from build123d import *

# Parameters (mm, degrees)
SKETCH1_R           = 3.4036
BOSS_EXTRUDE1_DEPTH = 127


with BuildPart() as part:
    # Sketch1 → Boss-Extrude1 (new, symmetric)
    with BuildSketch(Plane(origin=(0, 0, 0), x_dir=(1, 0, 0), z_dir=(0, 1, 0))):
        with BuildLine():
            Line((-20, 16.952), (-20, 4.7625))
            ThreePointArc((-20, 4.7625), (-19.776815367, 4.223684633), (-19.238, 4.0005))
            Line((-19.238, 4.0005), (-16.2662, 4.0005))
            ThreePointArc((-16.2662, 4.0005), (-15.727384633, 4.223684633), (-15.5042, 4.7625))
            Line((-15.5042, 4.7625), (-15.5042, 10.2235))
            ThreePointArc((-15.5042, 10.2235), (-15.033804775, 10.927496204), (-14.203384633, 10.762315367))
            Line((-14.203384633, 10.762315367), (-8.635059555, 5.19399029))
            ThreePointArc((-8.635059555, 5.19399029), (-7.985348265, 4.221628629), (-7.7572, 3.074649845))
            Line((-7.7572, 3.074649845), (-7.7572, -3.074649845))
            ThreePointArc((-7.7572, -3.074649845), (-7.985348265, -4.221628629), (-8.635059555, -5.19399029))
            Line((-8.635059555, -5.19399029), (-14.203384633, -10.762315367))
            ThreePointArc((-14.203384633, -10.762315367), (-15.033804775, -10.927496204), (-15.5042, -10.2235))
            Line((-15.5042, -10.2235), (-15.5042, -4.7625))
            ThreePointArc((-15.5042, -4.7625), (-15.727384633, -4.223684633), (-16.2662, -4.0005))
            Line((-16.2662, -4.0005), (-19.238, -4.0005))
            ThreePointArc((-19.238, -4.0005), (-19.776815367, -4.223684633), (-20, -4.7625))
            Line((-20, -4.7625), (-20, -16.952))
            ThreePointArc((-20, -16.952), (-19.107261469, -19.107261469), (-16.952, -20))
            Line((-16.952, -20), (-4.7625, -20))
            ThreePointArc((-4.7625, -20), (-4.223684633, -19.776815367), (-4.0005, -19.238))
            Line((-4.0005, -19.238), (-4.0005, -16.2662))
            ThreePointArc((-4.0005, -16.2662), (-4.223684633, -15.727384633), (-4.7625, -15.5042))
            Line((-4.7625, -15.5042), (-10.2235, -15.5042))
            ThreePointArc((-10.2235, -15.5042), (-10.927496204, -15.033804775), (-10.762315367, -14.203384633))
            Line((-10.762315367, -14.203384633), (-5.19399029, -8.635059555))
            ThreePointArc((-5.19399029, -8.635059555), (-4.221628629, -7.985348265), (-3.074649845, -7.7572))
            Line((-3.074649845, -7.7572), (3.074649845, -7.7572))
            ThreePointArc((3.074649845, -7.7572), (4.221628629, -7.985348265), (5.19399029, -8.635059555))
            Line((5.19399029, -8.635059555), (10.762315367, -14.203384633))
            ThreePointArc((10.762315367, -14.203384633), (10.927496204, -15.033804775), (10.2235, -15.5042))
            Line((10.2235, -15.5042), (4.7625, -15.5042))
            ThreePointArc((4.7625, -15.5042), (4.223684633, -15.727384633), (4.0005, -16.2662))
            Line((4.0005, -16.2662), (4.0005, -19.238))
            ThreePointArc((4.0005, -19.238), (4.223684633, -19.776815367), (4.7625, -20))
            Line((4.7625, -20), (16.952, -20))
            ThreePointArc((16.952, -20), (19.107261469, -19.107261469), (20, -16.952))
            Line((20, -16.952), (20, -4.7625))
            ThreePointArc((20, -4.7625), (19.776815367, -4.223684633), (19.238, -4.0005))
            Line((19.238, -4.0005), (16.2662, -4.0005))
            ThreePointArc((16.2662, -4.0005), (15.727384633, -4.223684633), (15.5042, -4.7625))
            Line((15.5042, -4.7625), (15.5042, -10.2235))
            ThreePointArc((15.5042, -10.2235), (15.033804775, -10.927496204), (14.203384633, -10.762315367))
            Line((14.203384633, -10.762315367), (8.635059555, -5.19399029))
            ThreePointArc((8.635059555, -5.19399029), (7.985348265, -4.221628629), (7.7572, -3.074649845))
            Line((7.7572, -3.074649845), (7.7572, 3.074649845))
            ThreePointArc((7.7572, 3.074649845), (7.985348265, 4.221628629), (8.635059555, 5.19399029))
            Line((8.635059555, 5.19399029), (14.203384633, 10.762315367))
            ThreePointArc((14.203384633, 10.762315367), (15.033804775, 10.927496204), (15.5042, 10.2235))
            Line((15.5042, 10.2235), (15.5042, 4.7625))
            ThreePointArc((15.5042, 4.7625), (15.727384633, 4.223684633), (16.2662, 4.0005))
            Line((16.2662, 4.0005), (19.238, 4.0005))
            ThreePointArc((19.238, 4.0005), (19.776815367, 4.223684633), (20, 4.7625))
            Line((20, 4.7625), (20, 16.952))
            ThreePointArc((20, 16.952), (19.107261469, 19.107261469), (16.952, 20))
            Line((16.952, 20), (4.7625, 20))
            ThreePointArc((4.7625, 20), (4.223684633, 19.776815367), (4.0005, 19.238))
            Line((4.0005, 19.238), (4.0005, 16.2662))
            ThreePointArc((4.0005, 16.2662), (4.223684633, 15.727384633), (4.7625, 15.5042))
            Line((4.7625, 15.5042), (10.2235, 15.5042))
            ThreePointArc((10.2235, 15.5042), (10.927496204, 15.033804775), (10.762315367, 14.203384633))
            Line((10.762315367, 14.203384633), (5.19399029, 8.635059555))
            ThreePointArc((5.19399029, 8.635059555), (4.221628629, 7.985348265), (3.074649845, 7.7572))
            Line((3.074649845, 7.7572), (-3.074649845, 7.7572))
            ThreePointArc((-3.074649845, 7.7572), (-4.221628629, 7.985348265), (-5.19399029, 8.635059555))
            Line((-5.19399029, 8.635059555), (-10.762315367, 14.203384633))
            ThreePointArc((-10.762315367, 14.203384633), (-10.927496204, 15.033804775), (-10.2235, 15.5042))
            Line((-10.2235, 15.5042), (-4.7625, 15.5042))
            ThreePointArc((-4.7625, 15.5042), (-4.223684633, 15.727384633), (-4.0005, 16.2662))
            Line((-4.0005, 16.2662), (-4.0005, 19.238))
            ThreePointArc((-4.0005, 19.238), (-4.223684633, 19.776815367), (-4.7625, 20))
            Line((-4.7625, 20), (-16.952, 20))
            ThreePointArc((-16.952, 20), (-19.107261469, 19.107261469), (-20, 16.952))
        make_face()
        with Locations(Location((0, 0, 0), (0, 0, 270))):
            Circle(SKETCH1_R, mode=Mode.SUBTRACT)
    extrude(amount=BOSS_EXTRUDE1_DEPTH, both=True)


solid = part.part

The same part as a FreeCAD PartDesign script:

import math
import FreeCAD as App
import Part
import Sketcher

V = App.Vector
Q = App.Units.Quantity

doc = App.newDocument("Part")
params = doc.addObject("Spreadsheet::Sheet", "Params")
for row, (alias, value) in enumerate([
    ("sketch1_radius", "0.03 in"),
    ("sketch1_radius2", "0.12 in"),
    ("sketch1_diameter", "0.268 in"),
    ("sketch1_radius3", "0.118 in"),
    ("sketch1_width", "0.117 in"),
    ("pad1_length", "10 in"),
], start=1):
    params.set(f"A{row}", alias)
    params.set(f"B{row}", "=" + value)
    params.setAlias(f"B{row}", alias)

body = doc.addObject("PartDesign::Body", "Body")

# Sketch on XZ plane
sketch1 = doc.addObject("Sketcher::SketchObject", "Sketch")
body.addObject(sketch1)
sketch1.AttachmentSupport = (doc.XZ_Plane, [""])
sketch1.MapMode = "FlatFace"
sketch1.addGeometry([
    Part.LineSegment(V(-20, -16.952, 0), V(-20, -4.7625, 0)),  # 0
    Part.ArcOfCircle(Part.Circle(V(-19.238, -4.7625, 0), V(0, 0, 1), 0.762), math.radians(90), math.radians(180)),  # 1
    Part.LineSegment(V(-19.238, -4.0005, 0), V(-16.2662, -4.0005, 0)),  # 2
    Part.ArcOfCircle(Part.Circle(V(-16.2662, -4.7625, 0), V(0, 0, 1), 0.762), math.radians(0), math.radians(90)),  # 3
    Part.LineSegment(V(-15.5042, -4.7625, 0), V(-15.5042, -10.2235, 0)),  # 4
    Part.ArcOfCircle(Part.Circle(V(-14.7422, -10.2235, 0), V(0, 0, 1), 0.762), math.radians(180), math.radians(315)),  # 5
    Part.LineSegment(V(-14.203385, -10.762315, 0), V(-8.63506, -5.19399, 0)),  # 6
    Part.ArcOfCircle(Part.Circle(V(-10.7544, -3.07465, 0), V(0, 0, 1), 2.9972), math.radians(-45), math.radians(0)),  # 7
    Part.LineSegment(V(-7.7572, -3.07465, 0), V(-7.7572, 3.07465, 0)),  # 8
    Part.ArcOfCircle(Part.Circle(V(-10.7544, 3.07465, 0), V(0, 0, 1), 2.9972), math.radians(0), math.radians(45)),  # 9
    Part.LineSegment(V(-8.63506, 5.19399, 0), V(-14.203385, 10.762315, 0)),  # 10
    Part.ArcOfCircle(Part.Circle(V(-14.7422, 10.2235, 0), V(0, 0, 1), 0.762), math.radians(45), math.radians(180)),  # 11
    Part.LineSegment(V(-15.5042, 10.2235, 0), V(-15.5042, 4.7625, 0)),  # 12
    Part.ArcOfCircle(Part.Circle(V(-16.2662, 4.7625, 0), V(0, 0, 1), 0.762), math.radians(-90), math.radians(0)),  # 13
    Part.LineSegment(V(-16.2662, 4.0005, 0), V(-19.238, 4.0005, 0)),  # 14
    Part.ArcOfCircle(Part.Circle(V(-19.238, 4.7625, 0), V(0, 0, 1), 0.762), math.radians(-180), math.radians(-90)),  # 15
    Part.LineSegment(V(-20, 4.7625, 0), V(-20, 16.952, 0)),  # 16
    Part.ArcOfCircle(Part.Circle(V(-16.952, 16.952, 0), V(0, 0, 1), 3.048), math.radians(90), math.radians(180)),  # 17
    Part.LineSegment(V(-16.952, 20, 0), V(-4.7625, 20, 0)),  # 18
    Part.ArcOfCircle(Part.Circle(V(-4.7625, 19.238, 0), V(0, 0, 1), 0.762), math.radians(0), math.radians(90)),  # 19
    Part.LineSegment(V(-4.0005, 19.238, 0), V(-4.0005, 16.2662, 0)),  # 20
    Part.ArcOfCircle(Part.Circle(V(-4.7625, 16.2662, 0), V(0, 0, 1), 0.762), math.radians(-90), math.radians(0)),  # 21
    Part.LineSegment(V(-4.7625, 15.5042, 0), V(-10.2235, 15.5042, 0)),  # 22
    Part.ArcOfCircle(Part.Circle(V(-10.2235, 14.7422, 0), V(0, 0, 1), 0.762), math.radians(90), math.radians(225)),  # 23
    Part.LineSegment(V(-10.762315, 14.203385, 0), V(-5.19399, 8.63506, 0)),  # 24
    Part.ArcOfCircle(Part.Circle(V(-3.07465, 10.7544, 0), V(0, 0, 1), 2.9972), math.radians(-135), math.radians(-90)),  # 25
    Part.LineSegment(V(-3.07465, 7.7572, 0), V(3.07465, 7.7572, 0)),  # 26
    Part.ArcOfCircle(Part.Circle(V(3.07465, 10.7544, 0), V(0, 0, 1), 2.9972), math.radians(-90), math.radians(-45)),  # 27
    Part.LineSegment(V(5.19399, 8.63506, 0), V(10.762315, 14.203385, 0)),  # 28
    Part.ArcOfCircle(Part.Circle(V(10.2235, 14.7422, 0), V(0, 0, 1), 0.762), math.radians(-45), math.radians(90)),  # 29
    Part.LineSegment(V(10.2235, 15.5042, 0), V(4.7625, 15.5042, 0)),  # 30
    Part.ArcOfCircle(Part.Circle(V(4.7625, 16.2662, 0), V(0, 0, 1), 0.762), math.radians(-180), math.radians(-90)),  # 31
    Part.LineSegment(V(4.0005, 16.2662, 0), V(4.0005, 19.238, 0)),  # 32
    Part.ArcOfCircle(Part.Circle(V(4.7625, 19.238, 0), V(0, 0, 1), 0.762), math.radians(90), math.radians(180)),  # 33
    Part.LineSegment(V(4.7625, 20, 0), V(16.952, 20, 0)),  # 34
    Part.ArcOfCircle(Part.Circle(V(16.952, 16.952, 0), V(0, 0, 1), 3.048), math.radians(0), math.radians(90)),  # 35
    Part.LineSegment(V(20, 16.952, 0), V(20, 4.7625, 0)),  # 36
    Part.ArcOfCircle(Part.Circle(V(19.238, 4.7625, 0), V(0, 0, 1), 0.762), math.radians(-90), math.radians(0)),  # 37
    Part.LineSegment(V(19.238, 4.0005, 0), V(16.2662, 4.0005, 0)),  # 38
    Part.ArcOfCircle(Part.Circle(V(16.2662, 4.7625, 0), V(0, 0, 1), 0.762), math.radians(-180), math.radians(-90)),  # 39
    Part.LineSegment(V(15.5042, 4.7625, 0), V(15.5042, 10.2235, 0)),  # 40
    Part.ArcOfCircle(Part.Circle(V(14.7422, 10.2235, 0), V(0, 0, 1), 0.762), math.radians(0), math.radians(135)),  # 41
    Part.LineSegment(V(14.203385, 10.762315, 0), V(8.63506, 5.19399, 0)),  # 42
    Part.ArcOfCircle(Part.Circle(V(10.7544, 3.07465, 0), V(0, 0, 1), 2.9972), math.radians(135), math.radians(180)),  # 43
    Part.LineSegment(V(7.7572, 3.07465, 0), V(7.7572, -3.07465, 0)),  # 44
    Part.ArcOfCircle(Part.Circle(V(10.7544, -3.07465, 0), V(0, 0, 1), 2.9972), math.radians(180), math.radians(225)),  # 45
    Part.LineSegment(V(8.63506, -5.19399, 0), V(14.203385, -10.762315, 0)),  # 46
    Part.ArcOfCircle(Part.Circle(V(14.7422, -10.2235, 0), V(0, 0, 1), 0.762), math.radians(-135), math.radians(0)),  # 47
    Part.LineSegment(V(15.5042, -10.2235, 0), V(15.5042, -4.7625, 0)),  # 48
    Part.ArcOfCircle(Part.Circle(V(16.2662, -4.7625, 0), V(0, 0, 1), 0.762), math.radians(90), math.radians(180)),  # 49
    Part.LineSegment(V(16.2662, -4.0005, 0), V(19.238, -4.0005, 0)),  # 50
    Part.ArcOfCircle(Part.Circle(V(19.238, -4.7625, 0), V(0, 0, 1), 0.762), math.radians(0), math.radians(90)),  # 51
    Part.LineSegment(V(20, -4.7625, 0), V(20, -16.952, 0)),  # 52
    Part.ArcOfCircle(Part.Circle(V(16.952, -16.952, 0), V(0, 0, 1), 3.048), math.radians(-90), math.radians(0)),  # 53
    Part.LineSegment(V(16.952, -20, 0), V(4.7625, -20, 0)),  # 54
    Part.ArcOfCircle(Part.Circle(V(4.7625, -19.238, 0), V(0, 0, 1), 0.762), math.radians(-180), math.radians(-90)),  # 55
    Part.LineSegment(V(4.0005, -19.238, 0), V(4.0005, -16.2662, 0)),  # 56
    Part.ArcOfCircle(Part.Circle(V(4.7625, -16.2662, 0), V(0, 0, 1), 0.762), math.radians(90), math.radians(180)),  # 57
    Part.LineSegment(V(4.7625, -15.5042, 0), V(10.2235, -15.5042, 0)),  # 58
    Part.ArcOfCircle(Part.Circle(V(10.2235, -14.7422, 0), V(0, 0, 1), 0.762), math.radians(-90), math.radians(45)),  # 59
    Part.LineSegment(V(10.762315, -14.203385, 0), V(5.19399, -8.63506, 0)),  # 60
    Part.ArcOfCircle(Part.Circle(V(3.07465, -10.7544, 0), V(0, 0, 1), 2.9972), math.radians(45), math.radians(90)),  # 61
    Part.LineSegment(V(3.07465, -7.7572, 0), V(-3.07465, -7.7572, 0)),  # 62
    Part.ArcOfCircle(Part.Circle(V(-3.07465, -10.7544, 0), V(0, 0, 1), 2.9972), math.radians(90), math.radians(135)),  # 63
    Part.LineSegment(V(-5.19399, -8.63506, 0), V(-10.762315, -14.203385, 0)),  # 64
    Part.ArcOfCircle(Part.Circle(V(-10.2235, -14.7422, 0), V(0, 0, 1), 0.762), math.radians(135), math.radians(270)),  # 65
    Part.LineSegment(V(-10.2235, -15.5042, 0), V(-4.7625, -15.5042, 0)),  # 66
    Part.ArcOfCircle(Part.Circle(V(-4.7625, -16.2662, 0), V(0, 0, 1), 0.762), math.radians(0), math.radians(90)),  # 67
    Part.LineSegment(V(-4.0005, -16.2662, 0), V(-4.0005, -19.238, 0)),  # 68
    Part.ArcOfCircle(Part.Circle(V(-4.7625, -19.238, 0), V(0, 0, 1), 0.762), math.radians(-90), math.radians(0)),  # 69
    Part.LineSegment(V(-4.7625, -20, 0), V(-16.952, -20, 0)),  # 70
    Part.ArcOfCircle(Part.Circle(V(-16.952, -16.952, 0), V(0, 0, 1), 3.048), math.radians(180), math.radians(270)),  # 71
    Part.Circle(V(0, 0, 0), V(0, 0, 1), 3.4036),  # 72
], False)
sketch1.addConstraint([
    Sketcher.Constraint("Tangent", 0, 2, 1, 2),
    Sketcher.Constraint("Tangent", 1, 1, 2, 1),
    Sketcher.Constraint("Tangent", 2, 2, 3, 2),
    Sketcher.Constraint("Tangent", 3, 1, 4, 1),
    Sketcher.Constraint("Tangent", 4, 2, 5, 1),
    Sketcher.Constraint("Tangent", 5, 2, 6, 1),
    Sketcher.Constraint("Tangent", 6, 2, 7, 1),
    Sketcher.Constraint("Tangent", 7, 2, 8, 1),
    Sketcher.Constraint("Tangent", 8, 2, 9, 1),
    Sketcher.Constraint("Tangent", 9, 2, 10, 1),
    Sketcher.Constraint("Tangent", 10, 2, 11, 1),
    Sketcher.Constraint("Tangent", 11, 2, 12, 1),
    Sketcher.Constraint("Tangent", 12, 2, 13, 2),
    Sketcher.Constraint("Tangent", 13, 1, 14, 1),
    Sketcher.Constraint("Tangent", 14, 2, 15, 2),
    Sketcher.Constraint("Tangent", 15, 1, 16, 1),
    Sketcher.Constraint("Tangent", 16, 2, 17, 2),
    Sketcher.Constraint("Tangent", 17, 1, 18, 1),
    Sketcher.Constraint("Tangent", 18, 2, 19, 2),
    Sketcher.Constraint("Tangent", 19, 1, 20, 1),
    Sketcher.Constraint("Tangent", 20, 2, 21, 2),
    Sketcher.Constraint("Tangent", 21, 1, 22, 1),
    Sketcher.Constraint("Tangent", 22, 2, 23, 1),
    Sketcher.Constraint("Tangent", 23, 2, 24, 1),
    Sketcher.Constraint("Tangent", 24, 2, 25, 1),
    Sketcher.Constraint("Tangent", 25, 2, 26, 1),
    Sketcher.Constraint("Tangent", 26, 2, 27, 1),
    Sketcher.Constraint("Tangent", 27, 2, 28, 1),
    Sketcher.Constraint("Tangent", 28, 2, 29, 1),
    Sketcher.Constraint("Tangent", 29, 2, 30, 1),
    Sketcher.Constraint("Tangent", 30, 2, 31, 2),
    Sketcher.Constraint("Tangent", 31, 1, 32, 1),
    Sketcher.Constraint("Tangent", 32, 2, 33, 2),
    Sketcher.Constraint("Tangent", 33, 1, 34, 1),
    Sketcher.Constraint("Tangent", 34, 2, 35, 2),
    Sketcher.Constraint("Tangent", 35, 1, 36, 1),
    Sketcher.Constraint("Tangent", 36, 2, 37, 2),
    Sketcher.Constraint("Tangent", 37, 1, 38, 1),
    Sketcher.Constraint("Tangent", 38, 2, 39, 2),
    Sketcher.Constraint("Tangent", 39, 1, 40, 1),
    Sketcher.Constraint("Tangent", 40, 2, 41, 1),
    Sketcher.Constraint("Tangent", 41, 2, 42, 1),
    Sketcher.Constraint("Tangent", 42, 2, 43, 1),
    Sketcher.Constraint("Tangent", 43, 2, 44, 1),
    Sketcher.Constraint("Tangent", 44, 2, 45, 1),
    Sketcher.Constraint("Tangent", 45, 2, 46, 1),
    Sketcher.Constraint("Tangent", 46, 2, 47, 1),
    Sketcher.Constraint("Tangent", 47, 2, 48, 1),
    Sketcher.Constraint("Tangent", 48, 2, 49, 2),
    Sketcher.Constraint("Tangent", 49, 1, 50, 1),
    Sketcher.Constraint("Tangent", 50, 2, 51, 2),
    Sketcher.Constraint("Tangent", 51, 1, 52, 1),
    Sketcher.Constraint("Tangent", 52, 2, 53, 2),
    Sketcher.Constraint("Tangent", 53, 1, 54, 1),
    Sketcher.Constraint("Tangent", 54, 2, 55, 2),
    Sketcher.Constraint("Tangent", 55, 1, 56, 1),
    Sketcher.Constraint("Tangent", 56, 2, 57, 2),
    Sketcher.Constraint("Tangent", 57, 1, 58, 1),
    Sketcher.Constraint("Tangent", 58, 2, 59, 1),
    Sketcher.Constraint("Tangent", 59, 2, 60, 1),
    Sketcher.Constraint("Tangent", 60, 2, 61, 1),
    Sketcher.Constraint("Tangent", 61, 2, 62, 1),
    Sketcher.Constraint("Tangent", 62, 2, 63, 1),
    Sketcher.Constraint("Tangent", 63, 2, 64, 1),
    Sketcher.Constraint("Tangent", 64, 2, 65, 1),
    Sketcher.Constraint("Tangent", 65, 2, 66, 1),
    Sketcher.Constraint("Tangent", 66, 2, 67, 2),
    Sketcher.Constraint("Tangent", 67, 1, 68, 1),
    Sketcher.Constraint("Tangent", 68, 2, 69, 2),
    Sketcher.Constraint("Tangent", 69, 1, 70, 1),
    Sketcher.Constraint("Tangent", 70, 2, 71, 2),
    Sketcher.Constraint("Tangent", 71, 1, 0, 1),
    Sketcher.Constraint("Vertical", 0),
    Sketcher.Constraint("Horizontal", 2),
    Sketcher.Constraint("Vertical", 4),
    Sketcher.Constraint("Vertical", 8),
    Sketcher.Constraint("Vertical", 12),
    Sketcher.Constraint("Horizontal", 14),
    Sketcher.Constraint("Vertical", 16),
    Sketcher.Constraint("Horizontal", 18),
    Sketcher.Constraint("Vertical", 20),
    Sketcher.Constraint("Horizontal", 22),
    Sketcher.Constraint("Horizontal", 26),
    Sketcher.Constraint("Horizontal", 30),
    Sketcher.Constraint("Vertical", 32),
    Sketcher.Constraint("Horizontal", 34),
    Sketcher.Constraint("Vertical", 36),
    Sketcher.Constraint("Horizontal", 38),
    Sketcher.Constraint("Vertical", 40),
    Sketcher.Constraint("Vertical", 44),
    Sketcher.Constraint("Vertical", 48),
    Sketcher.Constraint("Horizontal", 50),
    Sketcher.Constraint("Vertical", 52),
    Sketcher.Constraint("Horizontal", 54),
    Sketcher.Constraint("Vertical", 56),
    Sketcher.Constraint("Horizontal", 58),
    Sketcher.Constraint("Horizontal", 62),
    Sketcher.Constraint("Horizontal", 66),
    Sketcher.Constraint("Vertical", 68),
    Sketcher.Constraint("Horizontal", 70),
    Sketcher.Constraint("Coincident", 72, 3, -1, 1),
    Sketcher.Constraint("Equal", 1, 3),
    Sketcher.Constraint("Equal", 3, 5),
    Sketcher.Constraint("Equal", 7, 9),
    Sketcher.Constraint("Equal", 5, 11),
    Sketcher.Constraint("Equal", 11, 13),
    Sketcher.Constraint("Equal", 13, 15),
    Sketcher.Constraint("Equal", 15, 19),
    Sketcher.Constraint("Equal", 19, 21),
    Sketcher.Constraint("Equal", 21, 23),
    Sketcher.Constraint("Equal", 9, 25),
    Sketcher.Constraint("Equal", 25, 27),
    Sketcher.Constraint("Equal", 23, 29),
    Sketcher.Constraint("Equal", 29, 31),
    Sketcher.Constraint("Equal", 31, 33),
    Sketcher.Constraint("Equal", 17, 35),
    Sketcher.Constraint("Equal", 33, 37),
    Sketcher.Constraint("Equal", 37, 39),
    Sketcher.Constraint("Equal", 39, 41),
    Sketcher.Constraint("Equal", 27, 43),
    Sketcher.Constraint("Equal", 43, 45),
    Sketcher.Constraint("Equal", 41, 47),
    Sketcher.Constraint("Equal", 47, 49),
    Sketcher.Constraint("Equal", 49, 51),
    Sketcher.Constraint("Equal", 35, 53),
    Sketcher.Constraint("Equal", 51, 55),
    Sketcher.Constraint("Equal", 55, 57),
    Sketcher.Constraint("Equal", 57, 59),
    Sketcher.Constraint("Equal", 45, 61),
    Sketcher.Constraint("Equal", 61, 63),
    Sketcher.Constraint("Equal", 59, 65),
    Sketcher.Constraint("Equal", 65, 67),
    Sketcher.Constraint("Equal", 67, 69),
    Sketcher.Constraint("Equal", 53, 71),
    Sketcher.Constraint("Symmetric", 1, 3, 37, 3, -1, 1),
    Sketcher.Constraint("Symmetric", 5, 3, 41, 3, -1, 1),
    Sketcher.Constraint("Symmetric", 7, 3, 43, 3, -1, 1),
    Sketcher.Constraint("Symmetric", 11, 3, 47, 3, -1, 1),
    Sketcher.Constraint("Symmetric", 15, 3, 51, 3, -1, 1),
    Sketcher.Constraint("Symmetric", 19, 3, 55, 3, -1, 1),
    Sketcher.Constraint("Symmetric", 23, 3, 59, 3, -1, 1),
    Sketcher.Constraint("Symmetric", 25, 3, 61, 3, -1, 1),
    Sketcher.Constraint("Symmetric", 29, 3, 65, 3, -1, 1),
    Sketcher.Constraint("Symmetric", 33, 3, 69, 3, -1, 1),
    Sketcher.Constraint("Symmetric", 23, 3, 29, 3, -2),
    Sketcher.Constraint("Symmetric", 19, 3, 33, 3, -2),
    Sketcher.Constraint("Symmetric", 15, 3, 37, 3, -2),
    Sketcher.Constraint("Symmetric", 11, 3, 41, 3, -2),
    Sketcher.Constraint("Perpendicular", 6, 10),
    Sketcher.Constraint("Parallel", 10, 24),
    Sketcher.Constraint("Perpendicular", 24, 28),
    Sketcher.Constraint("Perpendicular", 42, 46),
    Sketcher.Constraint("Perpendicular", 60, 64),
    Sketcher.Constraint("Horizontal", 9, 3, 43, 3),
    Sketcher.Constraint("Equal", 70, 0),
    Sketcher.Constraint("Equal", 66, 4),
    Sketcher.Constraint("Equal", 62, 8),
    Sketcher.Constraint("Equal", 50, 20),
    Sketcher.Constraint("Equal", 10, 24),
    Sketcher.Constraint("Radius", 1, Q("0.03 in")),
    Sketcher.Constraint("Radius", 17, Q("0.12 in")),
    Sketcher.Constraint("Diameter", 72, Q("0.268 in")),
    Sketcher.Constraint("Radius", 7, Q("0.118 in")),
    Sketcher.Constraint("DistanceX", 2, 1, 2, 2, Q("0.117 in")),
    Sketcher.Constraint("DistanceX", 22, 2, 22, 1, Q("0.215 in")),
    Sketcher.Constraint("DistanceY", 1, 3, -1, 1, Q("0.1875 in")),
    Sketcher.Constraint("DistanceX", 18, 1, 18, 2, Q("12.1895 mm")),
    Sketcher.Constraint("DistanceX", 26, 1, 26, 2, Q("6.1493 mm")),
])
sketch1.setExpression("Constraints[159]", "Params.sketch1_radius")
sketch1.setExpression("Constraints[160]", "Params.sketch1_radius2")
sketch1.setExpression("Constraints[161]", "Params.sketch1_diameter")
sketch1.setExpression("Constraints[162]", "Params.sketch1_radius3")
sketch1.setExpression("Constraints[163]", "Params.sketch1_width")
pad1 = doc.addObject("PartDesign::Pad", "Pad")
body.addObject(pad1)
pad1.Profile = sketch1
pad1.setExpression("Length", "Params.pad1_length")
pad1.Midplane = True

doc.recompute()
